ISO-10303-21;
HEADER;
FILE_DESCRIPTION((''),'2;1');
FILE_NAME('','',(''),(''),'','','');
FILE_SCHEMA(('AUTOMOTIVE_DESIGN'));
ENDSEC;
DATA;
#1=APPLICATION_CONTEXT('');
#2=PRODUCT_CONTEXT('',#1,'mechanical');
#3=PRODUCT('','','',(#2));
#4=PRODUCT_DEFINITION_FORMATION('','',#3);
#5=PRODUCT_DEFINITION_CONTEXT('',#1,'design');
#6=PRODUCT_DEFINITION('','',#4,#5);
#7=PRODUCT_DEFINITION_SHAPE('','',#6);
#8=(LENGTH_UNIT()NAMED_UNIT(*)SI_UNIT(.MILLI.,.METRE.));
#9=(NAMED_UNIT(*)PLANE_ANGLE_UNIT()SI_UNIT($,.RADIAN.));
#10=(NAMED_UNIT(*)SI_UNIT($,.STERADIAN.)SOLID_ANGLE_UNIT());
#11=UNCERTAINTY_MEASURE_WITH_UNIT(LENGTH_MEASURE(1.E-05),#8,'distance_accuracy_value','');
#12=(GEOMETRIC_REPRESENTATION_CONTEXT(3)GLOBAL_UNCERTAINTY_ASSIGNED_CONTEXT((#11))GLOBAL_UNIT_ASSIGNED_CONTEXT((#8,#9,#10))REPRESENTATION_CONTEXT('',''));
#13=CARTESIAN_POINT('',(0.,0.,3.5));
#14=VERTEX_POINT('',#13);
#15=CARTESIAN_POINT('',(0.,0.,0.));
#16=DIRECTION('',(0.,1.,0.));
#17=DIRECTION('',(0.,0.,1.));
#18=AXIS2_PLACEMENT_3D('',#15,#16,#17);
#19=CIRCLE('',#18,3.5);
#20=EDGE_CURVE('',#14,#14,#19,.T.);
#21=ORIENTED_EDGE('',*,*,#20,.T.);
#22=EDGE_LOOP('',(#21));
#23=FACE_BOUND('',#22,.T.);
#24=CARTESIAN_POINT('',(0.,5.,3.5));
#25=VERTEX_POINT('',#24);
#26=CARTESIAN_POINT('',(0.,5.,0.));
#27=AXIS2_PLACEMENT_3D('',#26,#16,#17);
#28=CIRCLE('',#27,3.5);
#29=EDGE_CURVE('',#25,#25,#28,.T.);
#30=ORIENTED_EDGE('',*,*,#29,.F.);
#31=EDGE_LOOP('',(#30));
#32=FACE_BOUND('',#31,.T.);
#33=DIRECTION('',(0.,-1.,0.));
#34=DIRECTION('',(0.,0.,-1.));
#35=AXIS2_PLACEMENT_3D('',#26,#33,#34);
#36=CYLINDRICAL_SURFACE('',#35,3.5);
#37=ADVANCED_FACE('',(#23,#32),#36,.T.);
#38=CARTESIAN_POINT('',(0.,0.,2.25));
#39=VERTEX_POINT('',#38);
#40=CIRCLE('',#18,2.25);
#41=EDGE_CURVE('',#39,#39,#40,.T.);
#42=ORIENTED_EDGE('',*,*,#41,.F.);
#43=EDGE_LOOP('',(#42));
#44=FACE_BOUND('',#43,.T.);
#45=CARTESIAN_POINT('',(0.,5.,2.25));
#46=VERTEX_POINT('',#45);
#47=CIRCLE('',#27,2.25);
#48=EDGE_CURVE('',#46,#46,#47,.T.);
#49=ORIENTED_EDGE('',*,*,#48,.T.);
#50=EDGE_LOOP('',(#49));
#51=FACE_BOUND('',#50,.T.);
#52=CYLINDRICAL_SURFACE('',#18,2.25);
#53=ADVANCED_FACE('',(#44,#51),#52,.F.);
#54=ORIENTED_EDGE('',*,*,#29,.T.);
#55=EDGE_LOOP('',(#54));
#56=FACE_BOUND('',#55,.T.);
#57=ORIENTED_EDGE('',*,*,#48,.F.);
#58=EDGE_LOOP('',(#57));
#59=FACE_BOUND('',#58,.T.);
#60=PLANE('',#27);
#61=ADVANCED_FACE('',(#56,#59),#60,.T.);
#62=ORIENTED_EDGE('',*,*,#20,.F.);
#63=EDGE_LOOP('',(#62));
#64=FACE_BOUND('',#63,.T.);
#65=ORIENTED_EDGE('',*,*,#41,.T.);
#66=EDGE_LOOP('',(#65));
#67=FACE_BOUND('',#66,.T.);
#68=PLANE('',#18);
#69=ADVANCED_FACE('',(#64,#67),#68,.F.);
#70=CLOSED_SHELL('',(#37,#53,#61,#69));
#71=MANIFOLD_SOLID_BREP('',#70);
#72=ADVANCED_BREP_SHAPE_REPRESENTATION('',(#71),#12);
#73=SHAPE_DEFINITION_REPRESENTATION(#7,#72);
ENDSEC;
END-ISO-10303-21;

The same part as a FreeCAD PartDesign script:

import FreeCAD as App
import Part
import Sketcher
from FreeCAD import Vector

doc = App.newDocument("Part")
body = doc.addObject("PartDesign::Body", "Body")

# Sketch on XZ plane
sketch1 = doc.addObject("Sketcher::SketchObject", "Sketch")
body.addObject(sketch1)
sketch1.AttachmentSupport = (doc.XZ_Plane, [""])
sketch1.MapMode = "FlatFace"
sketch1.addGeometry(Part.Circle(Vector(0, 0, 0), Vector(0, 0, 1), 3.5), False)
sketch1.addConstraint([
    Sketcher.Constraint("Coincident", 0, 3, -1, 1),
    Sketcher.Constraint("Diameter", 0, 7.0),
])
pad1 = doc.addObject("PartDesign::Pad", "Pad")
body.addObject(pad1)
pad1.Profile = sketch1
pad1.Length = 5
pad1.Reversed = True

# Sketch on XZ plane
sketch2 = doc.addObject("Sketcher::SketchObject", "Sketch001")
body.addObject(sketch2)
sketch2.AttachmentSupport = (doc.XZ_Plane, [""])
sketch2.MapMode = "FlatFace"
sketch2.AttachmentOffset = App.Placement(Vector(0, 0, -5), App.Rotation())
sketch2.addGeometry(Part.Circle(Vector(0, 0, 0), Vector(0, 0, 1), 2.2), False)
sketch2.addConstraint([
    Sketcher.Constraint("Coincident", 0, 3, -1, 1),
    Sketcher.Constraint("Diameter", 0, 4.5),
])
pocket1 = doc.addObject("PartDesign::Pocket", "Pocket")
body.addObject(pocket1)
pocket1.Profile = sketch2
pocket1.Type = "ThroughAll"
pocket1.Reversed = True

doc.recompute()
